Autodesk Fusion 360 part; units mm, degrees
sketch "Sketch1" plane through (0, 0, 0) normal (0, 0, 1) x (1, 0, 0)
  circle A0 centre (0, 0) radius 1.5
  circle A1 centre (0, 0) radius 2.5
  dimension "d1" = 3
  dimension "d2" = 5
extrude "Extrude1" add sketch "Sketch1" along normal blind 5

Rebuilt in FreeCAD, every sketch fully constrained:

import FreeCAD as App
import Part
import Sketcher

doc = App.newDocument("Part")
body = doc.addObject("PartDesign::Body", "Body")

# Sketch on XY plane
sketch1 = body.newObject("Sketcher::SketchObject", "Sketch")
sketch1.AttachmentSupport = (doc.getObject("XY_Plane"), [""])
sketch1.MapMode = "FlatFace"
sketch1.addGeometry(Part.Circle(App.Vector(0, 0, 0), App.Vector(0, 0, 1), 2.5), False)
sketch1.addGeometry(Part.Circle(App.Vector(0, 0, 0), App.Vector(0, 0, 1), 1.5), False)
sketch1.addConstraint(Sketcher.Constraint("Coincident", 0, 3, -1, 1))
sketch1.addConstraint(Sketcher.Constraint("Coincident", 1, 3, -1, 1))
sketch1.addConstraint(Sketcher.Constraint("Diameter", 0, 5.0))
sketch1.addConstraint(Sketcher.Constraint("Diameter", 1, 3.0))
pad1 = body.newObject("PartDesign::Pad", "Pad")
pad1.Profile = sketch1
pad1.Length = 5

doc.recompute()
